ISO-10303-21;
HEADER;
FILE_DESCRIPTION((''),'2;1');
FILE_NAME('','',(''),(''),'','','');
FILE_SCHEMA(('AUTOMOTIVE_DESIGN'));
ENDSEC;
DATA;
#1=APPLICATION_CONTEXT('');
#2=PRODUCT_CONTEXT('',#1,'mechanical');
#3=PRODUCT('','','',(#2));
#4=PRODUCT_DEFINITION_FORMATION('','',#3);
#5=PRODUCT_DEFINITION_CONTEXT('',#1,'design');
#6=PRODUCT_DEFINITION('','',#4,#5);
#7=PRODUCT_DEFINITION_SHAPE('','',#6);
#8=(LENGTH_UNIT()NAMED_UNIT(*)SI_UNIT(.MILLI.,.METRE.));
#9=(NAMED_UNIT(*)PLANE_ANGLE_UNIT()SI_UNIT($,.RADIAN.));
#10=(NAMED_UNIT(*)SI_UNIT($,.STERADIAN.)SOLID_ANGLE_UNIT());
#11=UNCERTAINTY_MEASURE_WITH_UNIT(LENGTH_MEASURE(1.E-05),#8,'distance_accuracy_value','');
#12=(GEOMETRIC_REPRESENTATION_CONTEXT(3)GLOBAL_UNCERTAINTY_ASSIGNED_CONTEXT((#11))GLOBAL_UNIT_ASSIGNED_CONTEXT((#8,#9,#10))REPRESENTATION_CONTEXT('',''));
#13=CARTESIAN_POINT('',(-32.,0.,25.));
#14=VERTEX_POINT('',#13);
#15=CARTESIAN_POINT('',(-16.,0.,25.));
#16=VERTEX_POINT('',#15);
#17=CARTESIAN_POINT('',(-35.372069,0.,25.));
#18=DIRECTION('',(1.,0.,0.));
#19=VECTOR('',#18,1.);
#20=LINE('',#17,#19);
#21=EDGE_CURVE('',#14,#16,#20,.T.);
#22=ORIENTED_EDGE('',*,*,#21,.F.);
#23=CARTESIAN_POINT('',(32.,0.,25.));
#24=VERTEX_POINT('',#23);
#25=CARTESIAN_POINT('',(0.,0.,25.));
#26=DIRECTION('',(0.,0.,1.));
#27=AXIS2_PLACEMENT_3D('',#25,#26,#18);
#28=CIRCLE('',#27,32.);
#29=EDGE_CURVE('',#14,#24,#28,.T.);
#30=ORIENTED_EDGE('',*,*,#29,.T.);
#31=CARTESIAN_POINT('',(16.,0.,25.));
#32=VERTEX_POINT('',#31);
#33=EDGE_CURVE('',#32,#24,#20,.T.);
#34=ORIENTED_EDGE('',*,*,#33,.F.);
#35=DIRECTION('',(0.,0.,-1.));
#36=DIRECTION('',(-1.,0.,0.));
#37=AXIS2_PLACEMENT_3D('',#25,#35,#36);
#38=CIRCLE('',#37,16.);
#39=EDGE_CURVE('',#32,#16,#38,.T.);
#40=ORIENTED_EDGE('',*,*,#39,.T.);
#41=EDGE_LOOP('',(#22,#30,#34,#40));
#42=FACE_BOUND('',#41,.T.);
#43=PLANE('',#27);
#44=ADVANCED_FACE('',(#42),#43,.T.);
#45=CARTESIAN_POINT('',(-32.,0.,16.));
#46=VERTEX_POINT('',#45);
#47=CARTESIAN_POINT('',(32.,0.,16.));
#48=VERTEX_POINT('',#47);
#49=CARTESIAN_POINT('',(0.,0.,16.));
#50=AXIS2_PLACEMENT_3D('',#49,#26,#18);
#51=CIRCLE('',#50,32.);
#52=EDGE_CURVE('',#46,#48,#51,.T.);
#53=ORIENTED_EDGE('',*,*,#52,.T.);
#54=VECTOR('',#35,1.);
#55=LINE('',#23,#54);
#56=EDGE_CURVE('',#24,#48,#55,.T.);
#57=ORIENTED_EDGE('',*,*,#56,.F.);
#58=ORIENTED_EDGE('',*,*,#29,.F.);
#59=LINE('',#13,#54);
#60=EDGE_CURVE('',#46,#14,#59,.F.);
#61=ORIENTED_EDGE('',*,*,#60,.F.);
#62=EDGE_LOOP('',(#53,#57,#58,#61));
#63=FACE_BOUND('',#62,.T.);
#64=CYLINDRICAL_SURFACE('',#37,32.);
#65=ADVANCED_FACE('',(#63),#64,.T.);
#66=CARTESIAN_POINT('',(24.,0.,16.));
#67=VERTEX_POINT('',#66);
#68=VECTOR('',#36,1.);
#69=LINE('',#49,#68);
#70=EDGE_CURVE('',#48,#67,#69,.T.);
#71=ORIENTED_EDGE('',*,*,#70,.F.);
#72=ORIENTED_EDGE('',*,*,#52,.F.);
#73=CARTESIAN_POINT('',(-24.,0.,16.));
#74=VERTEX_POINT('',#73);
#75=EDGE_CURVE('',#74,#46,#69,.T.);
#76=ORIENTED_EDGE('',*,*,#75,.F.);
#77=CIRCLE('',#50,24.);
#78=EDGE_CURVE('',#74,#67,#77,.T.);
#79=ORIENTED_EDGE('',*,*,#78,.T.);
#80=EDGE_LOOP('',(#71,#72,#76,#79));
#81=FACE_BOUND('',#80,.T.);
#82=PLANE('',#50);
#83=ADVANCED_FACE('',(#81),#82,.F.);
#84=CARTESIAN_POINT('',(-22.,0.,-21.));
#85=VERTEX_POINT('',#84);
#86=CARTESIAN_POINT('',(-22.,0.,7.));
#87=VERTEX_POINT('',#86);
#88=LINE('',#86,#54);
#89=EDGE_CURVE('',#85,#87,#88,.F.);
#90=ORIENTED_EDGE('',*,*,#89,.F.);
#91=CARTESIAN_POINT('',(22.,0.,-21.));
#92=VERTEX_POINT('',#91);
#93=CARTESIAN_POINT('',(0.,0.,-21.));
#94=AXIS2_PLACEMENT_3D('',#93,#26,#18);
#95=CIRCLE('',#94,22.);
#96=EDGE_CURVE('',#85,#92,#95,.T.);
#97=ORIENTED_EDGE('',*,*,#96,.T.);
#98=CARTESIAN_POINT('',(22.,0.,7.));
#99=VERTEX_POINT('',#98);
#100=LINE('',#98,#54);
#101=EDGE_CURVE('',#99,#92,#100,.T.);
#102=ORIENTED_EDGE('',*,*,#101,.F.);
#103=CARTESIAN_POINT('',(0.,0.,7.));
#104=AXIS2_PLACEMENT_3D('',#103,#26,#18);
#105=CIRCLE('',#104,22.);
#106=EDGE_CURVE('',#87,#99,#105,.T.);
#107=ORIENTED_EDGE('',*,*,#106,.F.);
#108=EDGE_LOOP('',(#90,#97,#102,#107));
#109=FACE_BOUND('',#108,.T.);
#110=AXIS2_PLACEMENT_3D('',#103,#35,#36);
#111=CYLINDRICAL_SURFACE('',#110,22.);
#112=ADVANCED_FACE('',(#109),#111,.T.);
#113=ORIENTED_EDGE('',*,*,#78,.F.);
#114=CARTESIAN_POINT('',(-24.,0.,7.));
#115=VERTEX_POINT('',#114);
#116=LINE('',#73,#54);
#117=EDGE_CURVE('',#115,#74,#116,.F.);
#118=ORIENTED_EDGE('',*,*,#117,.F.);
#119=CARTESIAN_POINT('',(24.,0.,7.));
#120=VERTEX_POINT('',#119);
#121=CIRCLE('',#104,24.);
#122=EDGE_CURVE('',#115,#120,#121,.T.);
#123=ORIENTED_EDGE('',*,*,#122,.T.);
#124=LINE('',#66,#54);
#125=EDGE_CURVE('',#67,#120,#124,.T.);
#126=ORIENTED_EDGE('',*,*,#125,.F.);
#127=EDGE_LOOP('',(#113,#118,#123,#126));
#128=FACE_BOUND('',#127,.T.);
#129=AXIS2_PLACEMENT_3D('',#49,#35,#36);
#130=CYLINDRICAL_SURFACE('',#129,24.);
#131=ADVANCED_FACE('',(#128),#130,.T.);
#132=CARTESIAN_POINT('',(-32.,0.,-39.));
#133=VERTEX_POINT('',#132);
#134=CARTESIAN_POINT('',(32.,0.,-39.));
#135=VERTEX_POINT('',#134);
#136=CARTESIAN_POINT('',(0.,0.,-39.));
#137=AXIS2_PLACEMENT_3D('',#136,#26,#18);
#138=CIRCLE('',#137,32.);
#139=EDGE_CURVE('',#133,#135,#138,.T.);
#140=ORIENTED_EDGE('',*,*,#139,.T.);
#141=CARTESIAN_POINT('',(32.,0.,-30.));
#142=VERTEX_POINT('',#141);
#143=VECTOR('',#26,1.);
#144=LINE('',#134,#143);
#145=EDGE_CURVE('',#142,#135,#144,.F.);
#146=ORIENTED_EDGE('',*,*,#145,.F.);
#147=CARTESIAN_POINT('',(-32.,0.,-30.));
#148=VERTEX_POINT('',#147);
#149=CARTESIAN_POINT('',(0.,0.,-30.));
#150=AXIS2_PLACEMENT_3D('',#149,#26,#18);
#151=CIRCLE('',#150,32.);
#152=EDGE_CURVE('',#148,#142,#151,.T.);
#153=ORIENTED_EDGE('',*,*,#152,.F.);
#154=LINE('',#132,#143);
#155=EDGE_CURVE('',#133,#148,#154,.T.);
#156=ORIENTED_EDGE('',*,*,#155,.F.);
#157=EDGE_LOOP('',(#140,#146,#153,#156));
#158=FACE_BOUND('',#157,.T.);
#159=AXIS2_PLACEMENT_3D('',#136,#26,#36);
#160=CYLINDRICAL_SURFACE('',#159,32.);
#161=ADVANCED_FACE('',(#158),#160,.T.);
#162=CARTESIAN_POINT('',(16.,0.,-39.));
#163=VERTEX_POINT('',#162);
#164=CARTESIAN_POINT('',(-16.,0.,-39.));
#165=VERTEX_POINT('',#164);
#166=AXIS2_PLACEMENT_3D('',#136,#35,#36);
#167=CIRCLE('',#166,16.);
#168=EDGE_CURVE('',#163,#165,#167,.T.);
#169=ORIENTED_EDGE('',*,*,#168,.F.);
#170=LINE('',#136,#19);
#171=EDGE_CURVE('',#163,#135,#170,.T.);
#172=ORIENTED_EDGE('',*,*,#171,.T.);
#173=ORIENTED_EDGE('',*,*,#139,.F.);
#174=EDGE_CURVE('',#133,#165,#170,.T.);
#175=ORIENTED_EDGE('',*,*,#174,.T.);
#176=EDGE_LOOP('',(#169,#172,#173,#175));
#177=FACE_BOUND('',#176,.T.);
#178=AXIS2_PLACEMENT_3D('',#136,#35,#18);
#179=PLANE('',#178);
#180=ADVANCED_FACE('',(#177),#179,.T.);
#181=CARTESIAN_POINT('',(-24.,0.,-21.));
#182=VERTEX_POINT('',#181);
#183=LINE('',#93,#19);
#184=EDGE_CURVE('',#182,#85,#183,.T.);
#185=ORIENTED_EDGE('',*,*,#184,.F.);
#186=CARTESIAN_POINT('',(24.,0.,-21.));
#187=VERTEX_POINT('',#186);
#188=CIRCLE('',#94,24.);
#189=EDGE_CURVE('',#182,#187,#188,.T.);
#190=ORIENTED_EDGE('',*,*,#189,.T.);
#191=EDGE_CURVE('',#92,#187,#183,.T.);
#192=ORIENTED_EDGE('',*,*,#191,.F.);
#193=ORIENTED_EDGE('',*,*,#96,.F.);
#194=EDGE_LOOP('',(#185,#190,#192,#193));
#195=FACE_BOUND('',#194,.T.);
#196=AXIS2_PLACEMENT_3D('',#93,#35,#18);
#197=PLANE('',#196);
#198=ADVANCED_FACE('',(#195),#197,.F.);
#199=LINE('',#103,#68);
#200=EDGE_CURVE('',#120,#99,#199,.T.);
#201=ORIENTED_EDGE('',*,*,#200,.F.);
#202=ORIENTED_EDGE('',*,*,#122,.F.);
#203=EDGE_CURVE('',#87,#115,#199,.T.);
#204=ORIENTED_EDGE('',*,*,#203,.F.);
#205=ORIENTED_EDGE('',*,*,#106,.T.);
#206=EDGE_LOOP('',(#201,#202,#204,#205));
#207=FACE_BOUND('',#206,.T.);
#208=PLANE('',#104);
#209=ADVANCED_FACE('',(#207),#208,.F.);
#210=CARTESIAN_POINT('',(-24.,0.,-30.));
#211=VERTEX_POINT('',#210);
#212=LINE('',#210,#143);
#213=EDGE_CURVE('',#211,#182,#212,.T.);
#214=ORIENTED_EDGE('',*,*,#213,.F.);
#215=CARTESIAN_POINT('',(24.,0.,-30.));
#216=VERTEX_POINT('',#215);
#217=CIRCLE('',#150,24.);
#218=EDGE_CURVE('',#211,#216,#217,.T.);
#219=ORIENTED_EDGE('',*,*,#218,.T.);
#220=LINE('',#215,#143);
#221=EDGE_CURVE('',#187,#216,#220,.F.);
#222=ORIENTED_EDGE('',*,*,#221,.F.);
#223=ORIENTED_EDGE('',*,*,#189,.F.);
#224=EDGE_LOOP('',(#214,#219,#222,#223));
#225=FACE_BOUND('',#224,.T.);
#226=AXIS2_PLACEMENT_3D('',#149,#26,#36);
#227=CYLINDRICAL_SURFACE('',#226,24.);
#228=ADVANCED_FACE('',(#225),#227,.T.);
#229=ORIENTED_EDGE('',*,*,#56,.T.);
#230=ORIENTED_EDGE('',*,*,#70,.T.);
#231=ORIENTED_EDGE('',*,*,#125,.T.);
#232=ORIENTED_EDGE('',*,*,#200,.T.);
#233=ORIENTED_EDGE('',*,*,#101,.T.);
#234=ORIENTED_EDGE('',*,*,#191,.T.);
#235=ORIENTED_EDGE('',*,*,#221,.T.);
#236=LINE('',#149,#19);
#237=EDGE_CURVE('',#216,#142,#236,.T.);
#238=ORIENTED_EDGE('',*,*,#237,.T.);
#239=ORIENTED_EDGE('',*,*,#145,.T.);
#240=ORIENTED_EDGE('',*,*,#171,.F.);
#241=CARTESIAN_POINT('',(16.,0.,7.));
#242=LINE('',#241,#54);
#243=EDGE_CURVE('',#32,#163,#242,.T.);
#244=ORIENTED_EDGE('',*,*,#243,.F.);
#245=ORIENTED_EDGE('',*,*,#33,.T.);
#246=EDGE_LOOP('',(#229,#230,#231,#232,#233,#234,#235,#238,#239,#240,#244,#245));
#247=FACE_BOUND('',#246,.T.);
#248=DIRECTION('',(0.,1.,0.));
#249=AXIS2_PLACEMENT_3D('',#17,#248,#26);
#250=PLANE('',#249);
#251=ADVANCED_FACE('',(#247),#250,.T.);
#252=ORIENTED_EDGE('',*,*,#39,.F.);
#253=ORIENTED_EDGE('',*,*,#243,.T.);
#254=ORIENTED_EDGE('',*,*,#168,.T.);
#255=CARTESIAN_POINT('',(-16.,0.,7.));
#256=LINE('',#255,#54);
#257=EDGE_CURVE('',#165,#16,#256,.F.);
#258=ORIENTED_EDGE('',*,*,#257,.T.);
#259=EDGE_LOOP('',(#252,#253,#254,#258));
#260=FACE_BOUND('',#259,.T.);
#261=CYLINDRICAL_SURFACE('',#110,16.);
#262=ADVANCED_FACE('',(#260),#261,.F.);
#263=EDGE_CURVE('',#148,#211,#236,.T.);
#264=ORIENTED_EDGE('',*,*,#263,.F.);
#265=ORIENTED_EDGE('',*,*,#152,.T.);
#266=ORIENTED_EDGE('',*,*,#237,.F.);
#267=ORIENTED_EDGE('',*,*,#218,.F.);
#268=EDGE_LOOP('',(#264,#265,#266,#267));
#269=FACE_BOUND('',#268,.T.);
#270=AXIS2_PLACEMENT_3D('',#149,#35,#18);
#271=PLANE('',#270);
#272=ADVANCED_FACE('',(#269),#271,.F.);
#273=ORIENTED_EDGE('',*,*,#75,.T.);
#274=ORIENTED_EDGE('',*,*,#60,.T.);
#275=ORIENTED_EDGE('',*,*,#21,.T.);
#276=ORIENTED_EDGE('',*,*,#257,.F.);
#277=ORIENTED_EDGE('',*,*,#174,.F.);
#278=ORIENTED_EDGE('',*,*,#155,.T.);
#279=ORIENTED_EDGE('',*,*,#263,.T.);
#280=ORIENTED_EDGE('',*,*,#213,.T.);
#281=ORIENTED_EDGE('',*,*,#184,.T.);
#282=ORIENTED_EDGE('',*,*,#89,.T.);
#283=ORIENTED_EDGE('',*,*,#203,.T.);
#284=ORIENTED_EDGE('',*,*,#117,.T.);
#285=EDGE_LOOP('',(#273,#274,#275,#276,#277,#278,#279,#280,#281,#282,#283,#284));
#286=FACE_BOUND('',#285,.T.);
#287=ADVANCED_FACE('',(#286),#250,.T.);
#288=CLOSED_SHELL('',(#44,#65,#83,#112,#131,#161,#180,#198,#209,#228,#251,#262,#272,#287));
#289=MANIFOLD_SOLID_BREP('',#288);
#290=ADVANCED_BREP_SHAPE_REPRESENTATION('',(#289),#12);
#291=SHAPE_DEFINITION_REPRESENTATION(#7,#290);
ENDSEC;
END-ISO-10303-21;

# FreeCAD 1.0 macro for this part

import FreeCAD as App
import Part
import Sketcher
from FreeCAD import Vector
Q = App.Units.Quantity

doc = App.newDocument("Part")
body = doc.addObject("PartDesign::Body", "Body")

# Sketch on XY plane
sketch1 = doc.addObject("Sketcher::SketchObject", "Sketch")
body.addObject(sketch1)
sketch1.AttachmentSupport = (doc.XY_Plane, [""])
sketch1.MapMode = "FlatFace"
sketch1.addGeometry([
    Part.Circle(Vector(0, 0, 0), Vector(0, 0, 1), 22),
    Part.Circle(Vector(0, 0, 0), Vector(0, 0, 1), 16),
], False)
sketch1.addConstraint([
    Sketcher.Constraint("Coincident", 0, 3, -1, 1),
    Sketcher.Constraint("Coincident", 1, 3, -1, 1),
    Sketcher.Constraint("Diameter", 0, Q("44 mm")),
    Sketcher.Constraint("Diameter", 1, Q("32 mm")),
])
pad1 = doc.addObject("PartDesign::Pad", "Pad")
body.addObject(pad1)
pad1.Profile = sketch1
pad1.Length = 14
pad1.Midplane = True

# Sketch on XY plane
sketch2 = doc.addObject("Sketcher::SketchObject", "Sketch001")
body.addObject(sketch2)
sketch2.AttachmentSupport = (doc.XY_Plane, [""])
sketch2.MapMode = "FlatFace"
sketch2.AttachmentOffset = App.Placement(Vector(0, 0, 7), App.Rotation())
sketch2.addGeometry(Part.Circle(Vector(0, 0, 0), Vector(0, 0, 1), 24), False)
sketch2.addConstraint([
    Sketcher.Constraint("Coincident", 0, 3, -1, 1),
    Sketcher.Constraint("Diameter", 0, Q("48 mm")),
])
pad2 = doc.addObject("PartDesign::Pad", "Pad001")
body.addObject(pad2)
pad2.Profile = sketch2
pad2.Length = 9

# Sketch on XY plane
sketch3 = doc.addObject("Sketcher::SketchObject", "Sketch002")
body.addObject(sketch3)
sketch3.AttachmentSupport = (doc.XY_Plane, [""])
sketch3.MapMode = "FlatFace"
sketch3.AttachmentOffset = App.Placement(Vector(0, 0, 16), App.Rotation())
sketch3.addGeometry(Part.Circle(Vector(0, 0, 0), Vector(0, 0, 1), 32), False)
sketch3.addConstraint([
    Sketcher.Constraint("Coincident", 0, 3, -1, 1),
    Sketcher.Constraint("Diameter", 0, Q("64 mm")),
])
pad3 = doc.addObject("PartDesign::Pad", "Pad002")
body.addObject(pad3)
pad3.Profile = sketch3
pad3.Length = 9

# Sketch on XY plane
sketch4 = doc.addObject("Sketcher::SketchObject", "Sketch003")
body.addObject(sketch4)
sketch4.AttachmentSupport = (doc.XY_Plane, [""])
sketch4.MapMode = "FlatFace"
sketch4.AttachmentOffset = App.Placement(Vector(0, 0, -7), App.Rotation())
sketch4.addGeometry(Part.Circle(Vector(0, 0, 0), Vector(0, 0, 1), 16), False)
sketch4.addConstraint([
    Sketcher.Constraint("Coincident", 0, 3, -1, 1),
    Sketcher.Constraint("Diameter", 0, Q("32 mm")),
])
pocket1 = doc.addObject("PartDesign::Pocket", "Pocket")
body.addObject(pocket1)
pocket1.Profile = sketch4
pocket1.Type = "ThroughAll"
pocket1.Reversed = True
body2 = doc.addObject("PartDesign::Body", "Body001")
doc.recompute()

body2.BaseFeature = body
doc.recompute()

mirroring = doc.addObject("Part::Mirroring", "Mirroring")
mirroring.Source = body
mirroring.Base = Vector(0, 0, -7)
mirroring.Normal = Vector(0, 0, 1)
body3 = doc.addObject("PartDesign::Body", "Body002")
body3.BaseFeature = mirroring
boolean = doc.addObject("PartDesign::Boolean", "Boolean")
body2.addObject(boolean)
boolean.Type = "Fuse"
boolean.addObjects([body3])
doc.recompute()

# Sketch on XY plane
sketch5 = doc.addObject("Sketcher::SketchObject", "Sketch004")
body2.addObject(sketch5)
sketch5.AttachmentSupport = (doc.getObject("XY_Plane001"), [""])
sketch5.MapMode = "FlatFace"
sketch5.AttachmentOffset = App.Placement(Vector(0, 0, 25), App.Rotation())
sketch5.addGeometry([
    Part.LineSegment(Vector(-195, 0, 0), Vector(194, 0, 0)),
    Part.LineSegment(Vector(194, 0, 0), Vector(194, 318, 0)),
    Part.LineSegment(Vector(194, 318, 0), Vector(-195, 318, 0)),
    Part.LineSegment(Vector(-195, 318, 0), Vector(-195, 0, 0)),
], False)
sketch5.addConstraint([
    Sketcher.Constraint("Coincident", 0, 2, 1, 1),
    Sketcher.Constraint("Coincident", 1, 2, 2, 1),
    Sketcher.Constraint("Coincident", 2, 2, 3, 1),
    Sketcher.Constraint("Coincident", 3, 2, 0, 1),
    Sketcher.Constraint("Horizontal", 0),
    Sketcher.Constraint("Vertical", 1),
    Sketcher.Constraint("Horizontal", 2),
    Sketcher.Constraint("Vertical", 3),
    Sketcher.Constraint("PointOnObject", 0, 2, -1),
    Sketcher.Constraint("DistanceX", 0, 1, 0, 2, Q("388.284219 mm")),
    Sketcher.Constraint("DistanceY", 1, 1, 1, 2, Q("318.341968 mm")),
    Sketcher.Constraint("DistanceX", -1, 1, 0, 2, Q("193.741167 mm")),
])
pocket2 = doc.addObject("PartDesign::Pocket", "Pocket001")
body2.addObject(pocket2)
pocket2.Profile = sketch5
pocket2.Type = "ThroughAll"
mirroring.Visibility = False

doc.recompute()
